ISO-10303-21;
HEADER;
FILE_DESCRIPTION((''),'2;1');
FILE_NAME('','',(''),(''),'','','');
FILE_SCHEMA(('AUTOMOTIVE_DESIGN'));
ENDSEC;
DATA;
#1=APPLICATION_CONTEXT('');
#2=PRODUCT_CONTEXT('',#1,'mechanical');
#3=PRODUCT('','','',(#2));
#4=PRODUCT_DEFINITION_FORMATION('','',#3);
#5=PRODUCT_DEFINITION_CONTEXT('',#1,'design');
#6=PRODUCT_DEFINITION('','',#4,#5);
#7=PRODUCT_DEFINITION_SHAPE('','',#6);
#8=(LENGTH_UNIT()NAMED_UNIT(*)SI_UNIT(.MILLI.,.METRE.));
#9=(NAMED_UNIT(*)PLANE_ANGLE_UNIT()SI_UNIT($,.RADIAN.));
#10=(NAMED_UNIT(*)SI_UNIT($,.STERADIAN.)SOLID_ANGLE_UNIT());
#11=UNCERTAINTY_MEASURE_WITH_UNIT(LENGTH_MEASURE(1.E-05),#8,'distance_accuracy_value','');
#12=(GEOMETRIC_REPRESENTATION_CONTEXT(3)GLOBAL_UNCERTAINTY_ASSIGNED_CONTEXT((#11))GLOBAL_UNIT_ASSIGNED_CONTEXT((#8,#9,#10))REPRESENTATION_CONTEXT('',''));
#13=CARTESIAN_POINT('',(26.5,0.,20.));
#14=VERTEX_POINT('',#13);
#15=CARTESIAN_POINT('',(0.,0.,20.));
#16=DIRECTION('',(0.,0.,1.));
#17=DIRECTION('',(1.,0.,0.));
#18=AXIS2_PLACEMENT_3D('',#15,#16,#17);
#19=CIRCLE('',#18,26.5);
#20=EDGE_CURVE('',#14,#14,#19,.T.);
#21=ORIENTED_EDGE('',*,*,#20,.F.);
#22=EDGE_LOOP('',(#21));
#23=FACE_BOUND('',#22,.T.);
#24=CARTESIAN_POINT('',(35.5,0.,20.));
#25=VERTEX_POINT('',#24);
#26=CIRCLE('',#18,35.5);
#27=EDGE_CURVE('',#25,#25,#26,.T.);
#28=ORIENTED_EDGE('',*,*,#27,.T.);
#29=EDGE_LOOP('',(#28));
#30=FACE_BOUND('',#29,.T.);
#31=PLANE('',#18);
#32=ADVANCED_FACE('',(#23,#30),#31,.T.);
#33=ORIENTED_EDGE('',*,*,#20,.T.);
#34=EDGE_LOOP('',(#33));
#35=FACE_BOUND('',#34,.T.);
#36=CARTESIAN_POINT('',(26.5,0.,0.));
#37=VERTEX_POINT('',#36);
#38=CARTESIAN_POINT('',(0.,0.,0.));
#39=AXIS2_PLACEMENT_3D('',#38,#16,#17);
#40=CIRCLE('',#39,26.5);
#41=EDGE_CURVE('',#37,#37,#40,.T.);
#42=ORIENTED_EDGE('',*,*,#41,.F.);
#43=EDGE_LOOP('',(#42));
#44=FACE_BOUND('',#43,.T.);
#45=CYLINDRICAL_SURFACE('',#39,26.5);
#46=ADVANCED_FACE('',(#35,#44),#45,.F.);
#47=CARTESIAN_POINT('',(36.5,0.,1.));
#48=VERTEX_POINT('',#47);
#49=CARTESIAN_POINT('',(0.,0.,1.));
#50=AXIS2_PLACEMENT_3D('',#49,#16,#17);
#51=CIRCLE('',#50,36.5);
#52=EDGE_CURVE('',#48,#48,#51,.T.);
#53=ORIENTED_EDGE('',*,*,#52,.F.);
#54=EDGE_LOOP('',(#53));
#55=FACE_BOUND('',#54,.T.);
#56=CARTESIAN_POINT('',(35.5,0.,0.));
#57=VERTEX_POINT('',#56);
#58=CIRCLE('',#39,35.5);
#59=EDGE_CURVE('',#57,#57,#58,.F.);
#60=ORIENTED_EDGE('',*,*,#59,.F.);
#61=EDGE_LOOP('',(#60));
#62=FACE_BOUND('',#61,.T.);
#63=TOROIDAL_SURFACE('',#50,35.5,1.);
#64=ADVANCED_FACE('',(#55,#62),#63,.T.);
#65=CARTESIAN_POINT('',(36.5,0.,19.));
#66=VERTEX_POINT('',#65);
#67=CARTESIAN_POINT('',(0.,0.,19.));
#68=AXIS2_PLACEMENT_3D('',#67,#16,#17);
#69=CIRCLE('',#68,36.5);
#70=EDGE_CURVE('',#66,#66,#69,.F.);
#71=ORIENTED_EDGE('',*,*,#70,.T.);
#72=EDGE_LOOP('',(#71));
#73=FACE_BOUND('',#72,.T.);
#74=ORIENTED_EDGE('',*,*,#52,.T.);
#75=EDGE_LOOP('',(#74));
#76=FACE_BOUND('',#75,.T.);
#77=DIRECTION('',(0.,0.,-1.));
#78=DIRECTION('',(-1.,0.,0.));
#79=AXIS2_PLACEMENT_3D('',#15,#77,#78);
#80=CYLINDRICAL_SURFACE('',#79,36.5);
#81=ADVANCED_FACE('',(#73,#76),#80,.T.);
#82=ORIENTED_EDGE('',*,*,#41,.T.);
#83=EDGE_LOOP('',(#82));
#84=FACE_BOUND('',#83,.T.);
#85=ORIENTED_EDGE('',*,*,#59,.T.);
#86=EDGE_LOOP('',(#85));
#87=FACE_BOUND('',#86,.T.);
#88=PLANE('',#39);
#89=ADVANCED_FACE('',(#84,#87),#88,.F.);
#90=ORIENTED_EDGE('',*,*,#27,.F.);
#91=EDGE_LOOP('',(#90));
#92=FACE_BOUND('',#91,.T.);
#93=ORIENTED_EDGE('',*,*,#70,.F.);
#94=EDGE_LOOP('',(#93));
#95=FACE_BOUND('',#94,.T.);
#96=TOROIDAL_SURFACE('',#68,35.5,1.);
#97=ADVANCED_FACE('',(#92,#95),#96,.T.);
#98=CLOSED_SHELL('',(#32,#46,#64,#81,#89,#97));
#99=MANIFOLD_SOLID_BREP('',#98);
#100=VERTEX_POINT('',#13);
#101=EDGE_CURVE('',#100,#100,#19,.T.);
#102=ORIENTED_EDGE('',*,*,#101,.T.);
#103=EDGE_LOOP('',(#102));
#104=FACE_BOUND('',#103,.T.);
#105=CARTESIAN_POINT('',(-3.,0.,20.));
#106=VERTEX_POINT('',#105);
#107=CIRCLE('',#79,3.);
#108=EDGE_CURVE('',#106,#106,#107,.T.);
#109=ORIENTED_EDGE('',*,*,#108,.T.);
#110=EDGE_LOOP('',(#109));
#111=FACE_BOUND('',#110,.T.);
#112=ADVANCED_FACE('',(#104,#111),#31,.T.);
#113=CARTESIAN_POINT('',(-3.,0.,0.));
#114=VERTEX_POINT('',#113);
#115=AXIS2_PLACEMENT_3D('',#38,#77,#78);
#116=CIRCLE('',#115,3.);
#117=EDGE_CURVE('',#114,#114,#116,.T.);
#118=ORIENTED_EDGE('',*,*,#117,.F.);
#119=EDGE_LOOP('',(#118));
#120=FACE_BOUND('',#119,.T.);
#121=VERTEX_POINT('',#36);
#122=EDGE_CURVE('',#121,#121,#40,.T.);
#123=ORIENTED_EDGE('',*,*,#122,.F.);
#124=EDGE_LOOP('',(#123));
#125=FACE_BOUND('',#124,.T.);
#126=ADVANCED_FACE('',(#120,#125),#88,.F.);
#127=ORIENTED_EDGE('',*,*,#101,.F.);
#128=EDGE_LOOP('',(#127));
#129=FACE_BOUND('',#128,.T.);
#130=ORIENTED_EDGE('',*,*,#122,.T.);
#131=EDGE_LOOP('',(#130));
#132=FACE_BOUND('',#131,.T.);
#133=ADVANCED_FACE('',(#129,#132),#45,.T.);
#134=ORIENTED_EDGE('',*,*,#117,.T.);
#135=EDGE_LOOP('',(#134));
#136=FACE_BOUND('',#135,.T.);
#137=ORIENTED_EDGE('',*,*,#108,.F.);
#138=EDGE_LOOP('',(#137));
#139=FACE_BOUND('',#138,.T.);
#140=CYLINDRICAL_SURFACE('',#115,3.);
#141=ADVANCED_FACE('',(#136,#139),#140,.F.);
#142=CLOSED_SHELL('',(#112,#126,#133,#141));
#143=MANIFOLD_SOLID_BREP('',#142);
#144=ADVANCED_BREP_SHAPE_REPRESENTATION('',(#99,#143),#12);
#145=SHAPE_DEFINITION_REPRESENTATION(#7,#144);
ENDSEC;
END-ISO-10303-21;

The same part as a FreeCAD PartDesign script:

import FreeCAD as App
import Part
import Sketcher
from FreeCAD import Vector


def edges_at(feature, points):
    """Names of the edges that pass closest to the given points."""
    edges = feature.Shape.Edges
    near = lambda p: min(range(len(edges)), key=lambda i: edges[i].distToShape(Part.Vertex(*p))[0])
    return sorted({f"Edge{near(p) + 1}" for p in points})


def add_polygon(sketch, points):
    """Adds a closed chain of lines whose ends are joined by coincident constraints."""
    first, n = sketch.GeometryCount, len(points)
    for a, b in zip(points, points[1:] + points[:1]):
        sketch.addGeometry(Part.LineSegment(App.Vector(*a, 0), App.Vector(*b, 0)), False)
    for i in range(n):
        sketch.addConstraint(Sketcher.Constraint("Coincident", first + i, 2, first + (i + 1) % n, 1))

doc = App.newDocument("Part")
body = doc.addObject("PartDesign::Body", "Body")

# Sketch on XY plane
sketch1 = body.newObject("Sketcher::SketchObject", "Sketch")
sketch1.AttachmentSupport = (doc.getObject("XY_Plane"), [""])
sketch1.MapMode = "FlatFace"
sketch1.addGeometry(Part.Circle(Vector(0, 0, 0), Vector(0, 0, 1), 36.5), False)
sketch1.addConstraint([
    Sketcher.Constraint("Coincident", 0, 3, -1, 1),
    Sketcher.Constraint("Diameter", 0, 73.0),
])
pad1 = body.newObject("PartDesign::Pad", "Pad")
pad1.Profile = sketch1
pad1.Length = 20

# Sketch on XY plane
sketch2 = body.newObject("Sketcher::SketchObject", "Sketch001")
sketch2.AttachmentSupport = (doc.getObject("XY_Plane"), [""])
sketch2.MapMode = "FlatFace"
sketch2.AttachmentOffset = App.Placement(Vector(0, 0, 20), App.Rotation())
sketch2.addGeometry(Part.Circle(Vector(0, 0, 0), Vector(0, 0, 1), 26.5), False)
sketch2.addConstraint([
    Sketcher.Constraint("Coincident", 0, 3, -1, 1),
    Sketcher.Constraint("Diameter", 0, 53.0),
])
pocket1 = body.newObject("PartDesign::Pocket", "Pocket")
pocket1.Profile = sketch2
pocket1.Length = 20
doc.recompute()

fillet = body.newObject("PartDesign::Fillet", "Fillet")
fillet.Base = (pocket1, edges_at(pocket1, [(-36.5, 0, 0), (-36.5, 0, 20)]))
fillet.Radius = 1
body2 = doc.addObject("PartDesign::Body", "Body001")

# Sketch on XY plane
sketch3 = body2.newObject("Sketcher::SketchObject", "Sketch002")
sketch3.AttachmentSupport = (doc.getObject("XY_Plane001"), [""])
sketch3.MapMode = "FlatFace"
sketch3.AttachmentOffset = App.Placement(Vector(0, 0, 20), App.Rotation())
sketch3.addGeometry(Part.Circle(Vector(0, 0, 0), Vector(0, 0, 1), 26.5), False)
sketch3.addConstraint([
    Sketcher.Constraint("Coincident", 0, 3, -1, 1),
    Sketcher.Constraint("Diameter", 0, 53.0),
])
pad2 = body2.newObject("PartDesign::Pad", "Pad001")
pad2.Profile = sketch3
pad2.Length = 20
pad2.Reversed = True

# Sketch on YZ plane
sketch4 = body2.newObject("Sketcher::SketchObject", "Sketch003")
sketch4.AttachmentSupport = (doc.getObject("YZ_Plane001"), [""])
sketch4.MapMode = "FlatFace"
add_polygon(sketch4, [(0, 20), (0, 0), (3, 0), (3, 20)])  # lines 0-3
sketch4.addConstraint([
    Sketcher.Constraint("Vertical", 0),
    Sketcher.Constraint("Horizontal", 1),
    Sketcher.Constraint("Vertical", 2),
    Sketcher.Constraint("Horizontal", 3),
    Sketcher.Constraint("Coincident", 0, 2, -1, 1),
    Sketcher.Constraint("DistanceX", 1, 1, 1, 2, 3.0),
    Sketcher.Constraint("DistanceY", 0, 2, 0, 1, 20.0),
])
groove = body2.newObject("PartDesign::Groove", "Groove")
groove.Profile = sketch4
groove.ReferenceAxis = (sketch4, ["V_Axis"])
groove.Angle = 360

doc.recompute()
